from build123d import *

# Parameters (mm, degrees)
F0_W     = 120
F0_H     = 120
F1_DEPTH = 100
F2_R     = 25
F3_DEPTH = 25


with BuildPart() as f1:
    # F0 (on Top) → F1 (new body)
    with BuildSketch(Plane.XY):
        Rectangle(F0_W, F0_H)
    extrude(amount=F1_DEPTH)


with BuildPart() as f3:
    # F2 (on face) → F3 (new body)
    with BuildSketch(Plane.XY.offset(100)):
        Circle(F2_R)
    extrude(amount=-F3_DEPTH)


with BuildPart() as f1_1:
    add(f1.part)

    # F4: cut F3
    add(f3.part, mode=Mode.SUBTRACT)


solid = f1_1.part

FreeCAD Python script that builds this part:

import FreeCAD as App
import Part
import Sketcher

doc = App.newDocument("Part")
body = doc.addObject("PartDesign::Body", "Body")

# Sketch on XY plane
sketch1 = doc.addObject("Sketcher::SketchObject", "Sketch")
body.addObject(sketch1)
sketch1.AttachmentSupport = (doc.XY_Plane, [""])
sketch1.MapMode = "FlatFace"
sketch1.addGeometry(Part.LineSegment(App.Vector(-60, 60, 0), App.Vector(-60, -60, 0)), False)
sketch1.addGeometry(Part.LineSegment(App.Vector(-60, -60, 0), App.Vector(60, -60, 0)), False)
sketch1.addGeometry(Part.LineSegment(App.Vector(60, -60, 0), App.Vector(60, 60, 0)), False)
sketch1.addGeometry(Part.LineSegment(App.Vector(60, 60, 0), App.Vector(-60, 60, 0)), False)
sketch1.addConstraint(Sketcher.Constraint("Coincident", 0, 2, 1, 1))
sketch1.addConstraint(Sketcher.Constraint("Coincident", 1, 2, 2, 1))
sketch1.addConstraint(Sketcher.Constraint("Coincident", 2, 2, 3, 1))
sketch1.addConstraint(Sketcher.Constraint("Coincident", 3, 2, 0, 1))
sketch1.addConstraint(Sketcher.Constraint("Vertical", 0))
sketch1.addConstraint(Sketcher.Constraint("Horizontal", 1))
sketch1.addConstraint(Sketcher.Constraint("Vertical", 2))
sketch1.addConstraint(Sketcher.Constraint("Horizontal", 3))
sketch1.addConstraint(Sketcher.Constraint("Symmetric", 0, 2, 2, 2, -1, 1))
sketch1.addConstraint(Sketcher.Constraint("Equal", 3, 0))
sketch1.addConstraint(Sketcher.Constraint("DistanceX", 1, 1, 1, 2, 120.0))
pad1 = doc.addObject("PartDesign::Pad", "Pad")
body.addObject(pad1)
pad1.Profile = sketch1
pad1.Length = 100
body2 = doc.addObject("PartDesign::Body", "Body001")

# Sketch on XY plane
sketch2 = doc.addObject("Sketcher::SketchObject", "Sketch001")
body2.addObject(sketch2)
sketch2.AttachmentSupport = (doc.getObject("XY_Plane001"), [""])
sketch2.MapMode = "FlatFace"
sketch2.AttachmentOffset = App.Placement(App.Vector(0, 0, 100), App.Rotation())
sketch2.addGeometry(Part.Circle(App.Vector(0, 0, 0), App.Vector(0, 0, 1), 25), False)
sketch2.addConstraint(Sketcher.Constraint("Coincident", 0, 3, -1, 1))
sketch2.addConstraint(Sketcher.Constraint("Diameter", 0, 50.0))
pad2 = doc.addObject("PartDesign::Pad", "Pad001")
body2.addObject(pad2)
pad2.Profile = sketch2
pad2.Length = 25
pad2.Reversed = True
doc.recompute()

boolean = doc.addObject("PartDesign::Boolean", "Boolean")
body.addObject(boolean)
boolean.Type = "Cut"
boolean.addObjects([body2])

doc.recompute()
